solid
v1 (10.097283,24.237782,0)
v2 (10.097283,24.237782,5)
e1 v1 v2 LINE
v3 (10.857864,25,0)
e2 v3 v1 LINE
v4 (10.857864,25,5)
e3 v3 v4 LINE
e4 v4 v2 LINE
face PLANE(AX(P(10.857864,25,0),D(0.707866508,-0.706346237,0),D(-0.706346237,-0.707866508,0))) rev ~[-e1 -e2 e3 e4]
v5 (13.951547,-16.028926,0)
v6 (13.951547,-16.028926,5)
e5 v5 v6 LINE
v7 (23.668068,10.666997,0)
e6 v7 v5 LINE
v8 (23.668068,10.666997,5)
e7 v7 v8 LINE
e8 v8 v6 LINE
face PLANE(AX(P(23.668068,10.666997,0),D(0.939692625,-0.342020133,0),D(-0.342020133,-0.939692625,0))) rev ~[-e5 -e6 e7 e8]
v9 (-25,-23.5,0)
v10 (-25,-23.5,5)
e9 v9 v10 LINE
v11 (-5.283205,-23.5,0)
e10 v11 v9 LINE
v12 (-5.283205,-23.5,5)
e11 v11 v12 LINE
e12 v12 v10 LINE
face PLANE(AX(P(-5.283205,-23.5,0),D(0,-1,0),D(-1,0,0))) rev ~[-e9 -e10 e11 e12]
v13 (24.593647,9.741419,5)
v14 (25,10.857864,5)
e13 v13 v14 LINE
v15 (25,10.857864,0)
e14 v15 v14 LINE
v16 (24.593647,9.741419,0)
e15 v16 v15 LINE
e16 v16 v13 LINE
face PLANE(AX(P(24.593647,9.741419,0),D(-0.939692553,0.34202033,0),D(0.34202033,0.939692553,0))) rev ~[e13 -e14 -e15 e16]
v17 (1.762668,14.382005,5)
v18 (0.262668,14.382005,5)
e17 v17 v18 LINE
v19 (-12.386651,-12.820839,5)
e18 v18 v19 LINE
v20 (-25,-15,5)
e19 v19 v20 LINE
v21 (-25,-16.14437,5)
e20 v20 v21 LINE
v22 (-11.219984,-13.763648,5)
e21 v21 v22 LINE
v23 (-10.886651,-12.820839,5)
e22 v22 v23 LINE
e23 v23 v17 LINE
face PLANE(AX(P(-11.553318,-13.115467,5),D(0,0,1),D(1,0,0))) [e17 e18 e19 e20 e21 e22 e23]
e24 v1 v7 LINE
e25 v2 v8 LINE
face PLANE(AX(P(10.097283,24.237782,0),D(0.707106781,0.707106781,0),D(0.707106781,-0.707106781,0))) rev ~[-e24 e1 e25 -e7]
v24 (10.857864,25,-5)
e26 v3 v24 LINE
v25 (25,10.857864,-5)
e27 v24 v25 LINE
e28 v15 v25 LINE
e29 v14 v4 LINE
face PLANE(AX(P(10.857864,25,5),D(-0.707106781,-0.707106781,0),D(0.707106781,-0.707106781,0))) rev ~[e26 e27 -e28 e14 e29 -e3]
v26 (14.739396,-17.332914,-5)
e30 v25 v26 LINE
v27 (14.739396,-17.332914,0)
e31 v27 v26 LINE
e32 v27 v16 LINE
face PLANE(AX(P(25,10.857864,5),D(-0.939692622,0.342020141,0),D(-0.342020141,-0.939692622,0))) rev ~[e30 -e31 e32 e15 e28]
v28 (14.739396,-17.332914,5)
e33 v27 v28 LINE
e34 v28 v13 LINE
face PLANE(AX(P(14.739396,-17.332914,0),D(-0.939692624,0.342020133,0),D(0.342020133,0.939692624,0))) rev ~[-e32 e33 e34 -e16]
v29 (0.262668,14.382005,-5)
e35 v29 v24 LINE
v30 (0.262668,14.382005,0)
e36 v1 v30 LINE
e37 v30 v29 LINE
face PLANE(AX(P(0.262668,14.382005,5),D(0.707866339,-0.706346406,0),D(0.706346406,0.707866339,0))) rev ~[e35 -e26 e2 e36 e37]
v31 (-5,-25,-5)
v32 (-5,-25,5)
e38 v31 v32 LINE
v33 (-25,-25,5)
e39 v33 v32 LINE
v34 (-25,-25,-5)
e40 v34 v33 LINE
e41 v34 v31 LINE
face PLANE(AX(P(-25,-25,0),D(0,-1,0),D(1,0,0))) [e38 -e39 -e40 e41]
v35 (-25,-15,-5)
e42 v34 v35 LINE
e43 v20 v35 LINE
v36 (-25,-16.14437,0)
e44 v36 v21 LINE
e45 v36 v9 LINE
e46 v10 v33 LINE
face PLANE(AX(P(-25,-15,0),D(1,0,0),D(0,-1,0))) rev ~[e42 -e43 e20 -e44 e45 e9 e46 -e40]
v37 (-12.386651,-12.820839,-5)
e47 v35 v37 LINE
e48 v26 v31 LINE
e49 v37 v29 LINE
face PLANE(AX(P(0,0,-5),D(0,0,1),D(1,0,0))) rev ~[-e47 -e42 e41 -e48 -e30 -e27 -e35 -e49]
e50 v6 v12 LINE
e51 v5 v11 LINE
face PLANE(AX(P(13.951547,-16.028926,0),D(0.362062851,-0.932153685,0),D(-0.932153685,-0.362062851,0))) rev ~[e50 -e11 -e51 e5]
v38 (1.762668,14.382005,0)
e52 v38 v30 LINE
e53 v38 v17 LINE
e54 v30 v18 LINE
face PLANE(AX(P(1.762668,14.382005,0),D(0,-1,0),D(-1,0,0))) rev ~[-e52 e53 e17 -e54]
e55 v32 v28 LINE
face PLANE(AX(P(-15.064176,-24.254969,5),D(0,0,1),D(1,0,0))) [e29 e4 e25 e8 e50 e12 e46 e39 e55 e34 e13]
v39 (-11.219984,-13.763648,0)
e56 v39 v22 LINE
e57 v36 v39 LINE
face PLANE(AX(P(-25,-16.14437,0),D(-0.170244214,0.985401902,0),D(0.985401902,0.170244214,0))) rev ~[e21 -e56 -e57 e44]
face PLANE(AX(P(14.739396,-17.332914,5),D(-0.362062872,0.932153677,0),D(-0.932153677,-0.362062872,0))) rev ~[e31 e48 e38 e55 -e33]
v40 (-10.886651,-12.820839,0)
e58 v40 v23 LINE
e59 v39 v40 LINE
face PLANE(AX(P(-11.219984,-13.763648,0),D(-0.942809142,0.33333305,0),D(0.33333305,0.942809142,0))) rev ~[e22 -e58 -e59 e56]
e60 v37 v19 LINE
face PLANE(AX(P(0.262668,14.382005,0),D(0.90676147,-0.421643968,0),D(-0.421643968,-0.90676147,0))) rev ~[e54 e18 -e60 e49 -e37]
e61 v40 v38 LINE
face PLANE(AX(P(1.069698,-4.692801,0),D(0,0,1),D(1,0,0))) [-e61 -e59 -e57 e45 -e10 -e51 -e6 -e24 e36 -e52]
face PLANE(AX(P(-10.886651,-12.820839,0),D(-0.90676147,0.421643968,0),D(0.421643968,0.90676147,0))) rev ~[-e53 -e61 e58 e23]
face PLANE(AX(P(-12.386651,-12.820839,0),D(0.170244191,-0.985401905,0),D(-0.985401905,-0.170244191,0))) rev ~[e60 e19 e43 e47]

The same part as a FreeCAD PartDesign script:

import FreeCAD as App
import Part
import Sketcher
from FreeCAD import Vector
Q = App.Units.Quantity

doc = App.newDocument("Part")
body = doc.addObject("PartDesign::Body", "Body")

# Sketch on XY plane
sketch1 = doc.addObject("Sketcher::SketchObject", "Sketch")
body.addObject(sketch1)
sketch1.AttachmentSupport = (doc.XY_Plane, [""])
sketch1.MapMode = "FlatFace"
sketch1.addGeometry([
    Part.LineSegment(Vector(-25, 25, 0), Vector(-25, -25, 0)),
    Part.LineSegment(Vector(-25, -25, 0), Vector(25, -25, 0)),
    Part.LineSegment(Vector(25, -25, 0), Vector(25, 25, 0)),
    Part.LineSegment(Vector(25, 25, 0), Vector(-25, 25, 0)),
], False)
sketch1.addConstraint([
    Sketcher.Constraint("Coincident", 0, 2, 1, 1),
    Sketcher.Constraint("Coincident", 1, 2, 2, 1),
    Sketcher.Constraint("Coincident", 2, 2, 3, 1),
    Sketcher.Constraint("Coincident", 3, 2, 0, 1),
    Sketcher.Constraint("Vertical", 0),
    Sketcher.Constraint("Horizontal", 1),
    Sketcher.Constraint("Vertical", 2),
    Sketcher.Constraint("Horizontal", 3),
    Sketcher.Constraint("Symmetric", 0, 2, 2, 2, -1, 1),
    Sketcher.Constraint("Equal", 3, 0),
    Sketcher.Constraint("DistanceX", 1, 1, 1, 2, Q("50 mm")),
])
pad1 = doc.addObject("PartDesign::Pad", "Pad")
body.addObject(pad1)
pad1.Profile = sketch1
pad1.Length = 10
pad1.Midplane = True

# Sketch on XY plane
sketch2 = doc.addObject("Sketcher::SketchObject", "Sketch001")
body.addObject(sketch2)
sketch2.AttachmentSupport = (doc.XY_Plane, [""])
sketch2.MapMode = "FlatFace"
sketch2.AttachmentOffset = App.Placement(Vector(0, 0, 5), App.Rotation())
sketch2.addGeometry([
    Part.LineSegment(Vector(0, 14, 0), Vector(11, 25, 0)),  # 0
    Part.LineSegment(Vector(11, 25, 0), Vector(-25, 25, 0)),  # 1
    Part.LineSegment(Vector(-25, 25, 0), Vector(-25, -15, 0)),  # 2
    Part.LineSegment(Vector(-25, -15, 0), Vector(-12, -13, 0)),  # 3
    Part.LineSegment(Vector(-12, -13, 0), Vector(0, 14, 0)),  # 4
    Part.LineSegment(Vector(25, -25, 0), Vector(25, 11, 0)),  # 5
    Part.LineSegment(Vector(25, 11, 0), Vector(15, -17, 0)),  # 6
    Part.LineSegment(Vector(15, -17, 0), Vector(-5, -25, 0)),  # 7
    Part.LineSegment(Vector(-5, -25, 0), Vector(25, -25, 0)),  # 8
    Part.LineSegment(Vector(25, 25, 0), Vector(11, 25, 0)),  # 9
    Part.LineSegment(Vector(11, 25, 0), Vector(25, 11, 0)),  # 10
    Part.LineSegment(Vector(25, 11, 0), Vector(25, 25, 0)),  # 11
], False)
sketch2.addConstraint([
    Sketcher.Constraint("Coincident", 0, 2, 1, 1),
    Sketcher.Constraint("Coincident", 1, 2, 2, 1),
    Sketcher.Constraint("Coincident", 2, 2, 3, 1),
    Sketcher.Constraint("Coincident", 3, 2, 4, 1),
    Sketcher.Constraint("Coincident", 4, 2, 0, 1),
    Sketcher.Constraint("Coincident", 5, 2, 6, 1),
    Sketcher.Constraint("Coincident", 6, 2, 7, 1),
    Sketcher.Constraint("Coincident", 7, 2, 8, 1),
    Sketcher.Constraint("Coincident", 8, 2, 5, 1),
    Sketcher.Constraint("Coincident", 9, 2, 10, 1),
    Sketcher.Constraint("Coincident", 10, 2, 11, 1),
    Sketcher.Constraint("Coincident", 11, 2, 9, 1),
    Sketcher.Constraint("Horizontal", 1),
    Sketcher.Constraint("Vertical", 2),
    Sketcher.Constraint("Vertical", 5),
    Sketcher.Constraint("Horizontal", 8),
    Sketcher.Constraint("Horizontal", 9),
    Sketcher.Constraint("Vertical", 11),
    Sketcher.Constraint("Coincident", 9, 2, 0, 2),
    Sketcher.Constraint("Coincident", 10, 2, 5, 2),
    Sketcher.Constraint("Symmetric", 1, 2, 8, 2, -1, 1),
    Sketcher.Constraint("Equal", 1, 5),
    Sketcher.Constraint("Equal", 9, 11),
    Sketcher.Constraint("Equal", 4, 6),
    Sketcher.Constraint("DistanceX", 8, 1, 8, 2, Q("30 mm")),
    Sketcher.Constraint("DistanceY", 2, 2, 2, 1, Q("40 mm")),
    Sketcher.Constraint("Angle", 6, Q("-110 deg")),
    Sketcher.Constraint("Distance", 0, Q("15 mm")),
    Sketcher.Constraint("Distance", 4, Q("30 mm")),
    Sketcher.Constraint("Distance", 10, Q("20.000001 mm")),
    Sketcher.Constraint("DistanceY", -1, 1, 0, 2, Q("25 mm")),
    Sketcher.Constraint("DistanceX", 3, 2, -1, 1, Q("12.386651 mm")),
    Sketcher.Constraint("DistanceY", 3, 2, -1, 1, Q("12.820839 mm")),
])
pocket1 = doc.addObject("PartDesign::Pocket", "Pocket")
body.addObject(pocket1)
pocket1.Profile = sketch2
pocket1.Length = 10

# Sketch on XY plane
sketch3 = doc.addObject("Sketcher::SketchObject", "Sketch002")
body.addObject(sketch3)
sketch3.AttachmentSupport = (doc.XY_Plane, [""])
sketch3.MapMode = "FlatFace"
sketch3.AttachmentOffset = App.Placement(Vector(0, 0, 5), App.Rotation())
sketch3.addGeometry([
    Part.LineSegment(Vector(-25, -15, 0), Vector(-25, -25, 0)),  # 0
    Part.LineSegment(Vector(-25, -25, 0), Vector(-5, -25, 0)),  # 1
    Part.LineSegment(Vector(-5, -25, 0), Vector(15, -17, 0)),  # 2
    Part.LineSegment(Vector(15, -17, 0), Vector(25, 11, 0)),  # 3
    Part.LineSegment(Vector(25, 11, 0), Vector(11, 25, 0)),  # 4
    Part.LineSegment(Vector(11, 25, 0), Vector(0, 14, 0)),  # 5
    Part.LineSegment(Vector(0, 14, 0), Vector(-12, -13, 0)),  # 6
    Part.LineSegment(Vector(-12, -13, 0), Vector(-25, -15, 0)),  # 7
], False)
sketch3.addConstraint([
    Sketcher.Constraint("Coincident", 0, 2, 1, 1),
    Sketcher.Constraint("Coincident", 1, 2, 2, 1),
    Sketcher.Constraint("Coincident", 2, 2, 3, 1),
    Sketcher.Constraint("Coincident", 3, 2, 4, 1),
    Sketcher.Constraint("Coincident", 4, 2, 5, 1),
    Sketcher.Constraint("Coincident", 5, 2, 6, 1),
    Sketcher.Constraint("Coincident", 6, 2, 7, 1),
    Sketcher.Constraint("Coincident", 7, 2, 0, 1),
    Sketcher.Constraint("Vertical", 0),
    Sketcher.Constraint("Horizontal", 1),
    Sketcher.Constraint("Equal", 3, 6),
    Sketcher.Constraint("DistanceX", 1, 1, 1, 2, Q("20 mm")),
    Sketcher.Constraint("DistanceY", 0, 2, 0, 1, Q("10 mm")),
    Sketcher.Constraint("Angle", 3, Q("70 deg")),
    Sketcher.Constraint("Angle", 4, Q("135 deg")),
    Sketcher.Constraint("Distance", 3, Q("29.999999 mm")),
    Sketcher.Constraint("Distance", 4, Q("20.000001 mm")),
    Sketcher.Constraint("Distance", 5, Q("15 mm")),
    Sketcher.Constraint("DistanceX", 0, 2, -1, 1, Q("25 mm")),
    Sketcher.Constraint("DistanceY", 0, 2, -1, 1, Q("25 mm")),
    Sketcher.Constraint("DistanceX", -1, 1, 3, 2, Q("25 mm")),
    Sketcher.Constraint("DistanceY", -1, 1, 4, 2, Q("25 mm")),
    Sketcher.Constraint("DistanceX", 6, 2, -1, 1, Q("12.386651 mm")),
    Sketcher.Constraint("DistanceY", 6, 2, -1, 1, Q("12.820839 mm")),
])
pocket2 = doc.addObject("PartDesign::Pocket", "Pocket001")
body.addObject(pocket2)
pocket2.Profile = sketch3
pocket2.Length = 5

# Sketch on XY plane
sketch4 = doc.addObject("Sketcher::SketchObject", "Sketch003")
body.addObject(sketch4)
sketch4.AttachmentSupport = (doc.XY_Plane, [""])
sketch4.MapMode = "FlatFace"
sketch4.addGeometry([
    Part.LineSegment(Vector(-11.219984, -13.763648, 0), Vector(-10.886651, -12.820839, 0)),  # 0
    Part.LineSegment(Vector(-10.886651, -12.820839, 0), Vector(1.762668, 14.382005, 0)),  # 1
    Part.LineSegment(Vector(1.762668, 14.382005, 0), Vector(0.262668, 14.382005, 0)),  # 2
    Part.LineSegment(Vector(0.262668, 14.382005, 0), Vector(-12.386651, -12.820839, 0)),  # 3
    Part.LineSegment(Vector(-12.386651, -12.820839, 0), Vector(-25, -15, 0)),  # 4
    Part.LineSegment(Vector(-25, -15, 0), Vector(-25, -16.14437, 0)),  # 5
    Part.LineSegment(Vector(-25, -16.14437, 0), Vector(-11.219984, -13.763648, 0)),  # 6
    Part.LineSegment(Vector(-5.283205, -23.5, 0), Vector(-25, -23.5, 0)),  # 7
    Part.LineSegment(Vector(-25, -23.5, 0), Vector(-25, -25, 0)),  # 8
    Part.LineSegment(Vector(-25, -25, 0), Vector(-5, -25, 0)),  # 9
    Part.LineSegment(Vector(-5, -25, 0), Vector(14.739396, -17.332914, 0)),  # 10
    Part.LineSegment(Vector(14.739396, -17.332914, 0), Vector(24.593647, 9.741419, 0)),  # 11
    Part.LineSegment(Vector(24.593647, 9.741419, 0), Vector(25, 10.857864, 0)),  # 12
    Part.LineSegment(Vector(25, 10.857864, 0), Vector(10.857864, 25, 0)),  # 13
    Part.LineSegment(Vector(10.857864, 25, 0), Vector(10.097283, 24.237782, 0)),  # 14
    Part.LineSegment(Vector(10.097283, 24.237782, 0), Vector(23.668068, 10.666997, 0)),  # 15
    Part.LineSegment(Vector(23.668068, 10.666997, 0), Vector(13.951547, -16.028926, 0)),  # 16
    Part.LineSegment(Vector(13.951547, -16.028926, 0), Vector(-5.283205, -23.5, 0)),  # 17
], False)
sketch4.addConstraint([
    Sketcher.Constraint("Coincident", 0, 2, 1, 1),
    Sketcher.Constraint("Coincident", 1, 2, 2, 1),
    Sketcher.Constraint("Coincident", 2, 2, 3, 1),
    Sketcher.Constraint("Coincident", 3, 2, 4, 1),
    Sketcher.Constraint("Coincident", 4, 2, 5, 1),
    Sketcher.Constraint("Coincident", 5, 2, 6, 1),
    Sketcher.Constraint("Coincident", 6, 2, 0, 1),
    Sketcher.Constraint("Coincident", 7, 2, 8, 1),
    Sketcher.Constraint("Coincident", 8, 2, 9, 1),
    Sketcher.Constraint("Coincident", 9, 2, 10, 1),
    Sketcher.Constraint("Coincident", 10, 2, 11, 1),
    Sketcher.Constraint("Coincident", 11, 2, 12, 1),
    Sketcher.Constraint("Coincident", 12, 2, 13, 1),
    Sketcher.Constraint("Coincident", 13, 2, 14, 1),
    Sketcher.Constraint("Coincident", 14, 2, 15, 1),
    Sketcher.Constraint("Coincident", 15, 2, 16, 1),
    Sketcher.Constraint("Coincident", 16, 2, 17, 1),
    Sketcher.Constraint("Coincident", 17, 2, 7, 1),
    Sketcher.Constraint("Horizontal", 2),
    Sketcher.Constraint("Vertical", 5),
    Sketcher.Constraint("Horizontal", 7),
    Sketcher.Constraint("Vertical", 8),
    Sketcher.Constraint("Horizontal", 9),
    Sketcher.Constraint("DistanceX", 9, 1, 9, 2, Q("20 mm")),
    Sketcher.Constraint("Distance", 0, Q("1 mm")),
    Sketcher.Constraint("Distance", 1, Q("30 mm")),
    Sketcher.Constraint("Distance", 3, Q("30 mm")),
    Sketcher.Constraint("Distance", 13, Q("20.000001 mm")),
    Sketcher.Constraint("DistanceX", 2, 2, 2, 1, Q("1.5 mm")),
    Sketcher.Constraint("DistanceY", 8, 2, 8, 1, Q("1.5 mm")),
    Sketcher.Constraint("DistanceX", 4, 2, -1, 1, Q("25 mm")),
    Sketcher.Constraint("DistanceY", 4, 2, -1, 1, Q("15 mm")),
    Sketcher.Constraint("DistanceX", 7, 2, -1, 1, Q("25 mm")),
    Sketcher.Constraint("DistanceY", 8, 2, -1, 1, Q("25 mm")),
    Sketcher.Constraint("DistanceX", -1, 1, 12, 2, Q("25 mm")),
    Sketcher.Constraint("DistanceY", -1, 1, 13, 2, Q("25 mm")),
    Sketcher.Constraint("DistanceX", 3, 2, 0, 2, Q("1.5 mm")),
    Sketcher.Constraint("DistanceY", 5, 2, 5, 1, Q("1.14437 mm")),
    Sketcher.Constraint("DistanceX", 0, 2, 11, 2, Q("35.480298 mm")),
    Sketcher.Constraint("DistanceX", 1, 2, 15, 2, Q("21.9054 mm")),
    Sketcher.Constraint("Distance", 6, Q("13.984158 mm")),
    Sketcher.Constraint("Distance", 15, Q("19.191988 mm")),
    Sketcher.Constraint("DistanceX", 7, 2, 7, 1, Q("19.716795 mm")),
    Sketcher.Constraint("DistanceX", 0, 2, -1, 1, Q("10.886651 mm")),
    Sketcher.Constraint("DistanceY", 0, 2, -1, 1, Q("12.820839 mm")),
    Sketcher.Constraint("DistanceY", -1, 1, 11, 2, Q("9.741419 mm")),
    Sketcher.Constraint("DistanceY", -1, 1, 14, 2, Q("24.237782 mm")),
    Sketcher.Constraint("DistanceX", -1, 1, 15, 2, Q("23.668068 mm")),
    Sketcher.Constraint("DistanceX", 6, 2, 10, 2, Q("25.95938 mm")),
    Sketcher.Constraint("DistanceY", 10, 2, 1, 2, Q("31.714919 mm")),
    Sketcher.Constraint("DistanceY", 12, 2, 1, 2, Q("3.524141 mm")),
    Sketcher.Constraint("DistanceX", 14, 2, 13, 2, Q("0.760581 mm")),
    Sketcher.Constraint("DistanceX", 16, 2, 10, 2, Q("0.787849 mm")),
    Sketcher.Constraint("DistanceY", 10, 2, 16, 2, Q("1.303988 mm")),
])
pad2 = doc.addObject("PartDesign::Pad", "Pad001")
body.addObject(pad2)
pad2.Profile = sketch4
pad2.Length = 5

doc.recompute()
